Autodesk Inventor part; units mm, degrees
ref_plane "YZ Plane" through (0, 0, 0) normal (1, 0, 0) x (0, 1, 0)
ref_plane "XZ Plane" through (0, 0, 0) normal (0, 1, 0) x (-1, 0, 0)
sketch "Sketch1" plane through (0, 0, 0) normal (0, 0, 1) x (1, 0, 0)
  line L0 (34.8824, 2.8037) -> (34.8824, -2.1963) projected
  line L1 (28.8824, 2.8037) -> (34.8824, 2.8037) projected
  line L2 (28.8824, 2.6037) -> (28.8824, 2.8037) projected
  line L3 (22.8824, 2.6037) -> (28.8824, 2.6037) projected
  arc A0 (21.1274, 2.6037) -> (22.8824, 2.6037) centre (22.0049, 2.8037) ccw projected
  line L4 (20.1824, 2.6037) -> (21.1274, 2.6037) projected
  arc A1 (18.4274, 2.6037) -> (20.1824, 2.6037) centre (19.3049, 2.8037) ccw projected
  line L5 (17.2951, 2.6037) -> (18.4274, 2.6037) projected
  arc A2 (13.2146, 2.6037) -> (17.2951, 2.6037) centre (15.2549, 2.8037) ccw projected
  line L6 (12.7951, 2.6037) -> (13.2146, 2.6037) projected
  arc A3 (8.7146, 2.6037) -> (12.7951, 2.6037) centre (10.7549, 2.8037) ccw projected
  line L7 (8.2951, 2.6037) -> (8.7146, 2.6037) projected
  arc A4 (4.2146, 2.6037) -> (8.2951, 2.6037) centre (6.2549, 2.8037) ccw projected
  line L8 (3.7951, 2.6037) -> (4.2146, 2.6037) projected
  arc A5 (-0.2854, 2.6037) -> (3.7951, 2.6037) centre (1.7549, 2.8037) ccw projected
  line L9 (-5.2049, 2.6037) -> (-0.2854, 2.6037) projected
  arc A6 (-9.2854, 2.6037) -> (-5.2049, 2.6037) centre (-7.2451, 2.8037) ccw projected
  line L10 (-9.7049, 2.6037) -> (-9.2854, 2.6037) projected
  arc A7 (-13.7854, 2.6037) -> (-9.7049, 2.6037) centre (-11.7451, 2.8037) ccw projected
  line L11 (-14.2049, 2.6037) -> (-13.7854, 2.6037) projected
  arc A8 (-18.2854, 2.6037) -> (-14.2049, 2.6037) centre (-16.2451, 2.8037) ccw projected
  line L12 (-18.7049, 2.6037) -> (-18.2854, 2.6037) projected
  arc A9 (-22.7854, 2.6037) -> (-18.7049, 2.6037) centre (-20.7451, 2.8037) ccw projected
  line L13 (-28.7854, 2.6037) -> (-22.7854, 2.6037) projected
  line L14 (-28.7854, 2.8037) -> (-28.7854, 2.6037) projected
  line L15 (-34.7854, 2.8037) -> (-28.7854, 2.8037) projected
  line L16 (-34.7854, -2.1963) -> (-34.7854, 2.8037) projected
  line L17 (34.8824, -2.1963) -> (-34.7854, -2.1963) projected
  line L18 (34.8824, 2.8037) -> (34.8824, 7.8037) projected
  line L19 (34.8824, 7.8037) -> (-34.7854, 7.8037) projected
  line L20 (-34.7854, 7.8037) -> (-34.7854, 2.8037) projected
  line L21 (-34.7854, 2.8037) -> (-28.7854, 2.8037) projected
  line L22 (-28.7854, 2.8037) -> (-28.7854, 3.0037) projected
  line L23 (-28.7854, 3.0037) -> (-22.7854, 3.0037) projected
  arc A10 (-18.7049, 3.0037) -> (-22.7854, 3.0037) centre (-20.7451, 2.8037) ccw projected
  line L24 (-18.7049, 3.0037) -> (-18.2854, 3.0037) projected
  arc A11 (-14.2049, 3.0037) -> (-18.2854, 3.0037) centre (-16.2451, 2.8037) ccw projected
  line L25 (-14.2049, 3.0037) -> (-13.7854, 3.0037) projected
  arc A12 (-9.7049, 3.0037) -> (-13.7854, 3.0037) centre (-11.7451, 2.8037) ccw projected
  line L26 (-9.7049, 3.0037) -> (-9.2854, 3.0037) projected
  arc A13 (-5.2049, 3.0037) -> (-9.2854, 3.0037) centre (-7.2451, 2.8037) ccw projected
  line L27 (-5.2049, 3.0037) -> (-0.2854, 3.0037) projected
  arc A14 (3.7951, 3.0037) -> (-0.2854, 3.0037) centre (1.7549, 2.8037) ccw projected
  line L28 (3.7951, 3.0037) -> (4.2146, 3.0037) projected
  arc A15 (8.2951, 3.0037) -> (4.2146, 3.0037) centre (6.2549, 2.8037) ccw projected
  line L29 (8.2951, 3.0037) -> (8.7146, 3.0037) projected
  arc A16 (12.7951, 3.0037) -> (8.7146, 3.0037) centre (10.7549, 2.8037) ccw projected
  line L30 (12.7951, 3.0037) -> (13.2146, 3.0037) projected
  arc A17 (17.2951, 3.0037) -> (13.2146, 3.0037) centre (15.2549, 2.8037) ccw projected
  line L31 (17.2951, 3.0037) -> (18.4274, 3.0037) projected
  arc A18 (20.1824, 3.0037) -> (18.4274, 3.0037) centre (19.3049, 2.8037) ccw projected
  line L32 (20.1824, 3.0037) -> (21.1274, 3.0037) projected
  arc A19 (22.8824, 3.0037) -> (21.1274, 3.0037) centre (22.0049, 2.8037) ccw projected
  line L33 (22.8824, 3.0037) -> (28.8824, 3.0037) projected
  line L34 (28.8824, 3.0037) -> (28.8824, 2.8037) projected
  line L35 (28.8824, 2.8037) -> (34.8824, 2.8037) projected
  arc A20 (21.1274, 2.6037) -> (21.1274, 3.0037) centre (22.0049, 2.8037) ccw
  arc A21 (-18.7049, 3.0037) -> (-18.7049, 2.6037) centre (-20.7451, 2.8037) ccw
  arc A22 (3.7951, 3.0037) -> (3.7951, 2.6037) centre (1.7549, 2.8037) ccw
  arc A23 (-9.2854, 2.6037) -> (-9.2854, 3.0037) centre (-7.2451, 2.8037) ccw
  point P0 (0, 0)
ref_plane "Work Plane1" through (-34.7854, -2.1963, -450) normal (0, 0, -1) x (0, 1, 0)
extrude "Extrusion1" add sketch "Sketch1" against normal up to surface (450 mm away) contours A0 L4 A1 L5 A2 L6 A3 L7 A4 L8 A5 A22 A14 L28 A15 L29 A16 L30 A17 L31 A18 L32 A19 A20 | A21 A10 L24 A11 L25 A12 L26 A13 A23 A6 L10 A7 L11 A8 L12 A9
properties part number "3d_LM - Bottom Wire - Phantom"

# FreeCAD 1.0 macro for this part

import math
import FreeCAD as App
import Part
import Sketcher
from FreeCAD import Vector
Q = App.Units.Quantity

doc = App.newDocument("Part")
params = doc.addObject("Spreadsheet::Sheet", "Params")
for row, (alias, value) in enumerate([
    ("sketch1_radius", "0.9 mm"),
    ("sketch1_radius2", "2.05 mm"),
    ("sketch1_height", "0.2 mm"),
    ("pad1_length", "450 mm"),
], start=1):
    params.set(f"A{row}", alias)
    params.set(f"B{row}", "=" + value)
    params.setAlias(f"B{row}", alias)

body = doc.addObject("PartDesign::Body", "Body")
body.AllowCompound = True

# Sketch on XY plane
sketch1 = body.newObject("Sketcher::SketchObject", "Sketch")
sketch1.AttachmentSupport = (doc.getObject("XY_Plane"), [""])
sketch1.MapMode = "FlatFace"
sketch1.addGeometry([
    Part.ArcOfCircle(Part.Circle(Vector(22, 2.8, 0), Vector(0, 0, 1), 0.9), math.radians(-167), math.radians(167)),  # 0
    Part.LineSegment(Vector(21.13, 3, 0), Vector(20.18, 3, 0)),  # 1
    Part.ArcOfCircle(Part.Circle(Vector(19.3, 2.8, 0), Vector(0, 0, 1), 0.9), math.radians(13), math.radians(167)),  # 2
    Part.LineSegment(Vector(18.43, 3, 0), Vector(17.3, 3, 0)),  # 3
    Part.ArcOfCircle(Part.Circle(Vector(15.25, 2.8, 0), Vector(0, 0, 1), 2.05), math.radians(6), math.radians(174)),  # 4
    Part.LineSegment(Vector(13.21, 3, 0), Vector(12.8, 3, 0)),  # 5
    Part.ArcOfCircle(Part.Circle(Vector(10.75, 2.8, 0), Vector(0, 0, 1), 2.05), math.radians(6), math.radians(174)),  # 6
    Part.LineSegment(Vector(8.71, 3, 0), Vector(8.3, 3, 0)),  # 7
    Part.ArcOfCircle(Part.Circle(Vector(6.25, 2.8, 0), Vector(0, 0, 1), 2.05), math.radians(6), math.radians(174)),  # 8
    Part.LineSegment(Vector(4.21, 3, 0), Vector(3.8, 3, 0)),  # 9
    Part.ArcOfCircle(Part.Circle(Vector(1.75, 2.8, 0), Vector(0, 0, 1), 2.05), math.radians(6), math.radians(174)),  # 10
    Part.ArcOfCircle(Part.Circle(Vector(1.75, 2.8, 0), Vector(0, 0, 1), 2.05), math.radians(174.4), math.radians(185.6)),  # 11
    Part.ArcOfCircle(Part.Circle(Vector(1.75, 2.8, 0), Vector(0, 0, 1), 2.05), math.radians(-174), math.radians(-6)),  # 12
    Part.LineSegment(Vector(3.8, 2.6, 0), Vector(4.21, 2.6, 0)),  # 13
    Part.ArcOfCircle(Part.Circle(Vector(6.25, 2.8, 0), Vector(0, 0, 1), 2.05), math.radians(-174), math.radians(-6)),  # 14
    Part.LineSegment(Vector(8.3, 2.6, 0), Vector(8.71, 2.6, 0)),  # 15
    Part.ArcOfCircle(Part.Circle(Vector(10.75, 2.8, 0), Vector(0, 0, 1), 2.05), math.radians(-174), math.radians(-6)),  # 16
    Part.LineSegment(Vector(12.8, 2.6, 0), Vector(13.21, 2.6, 0)),  # 17
    Part.ArcOfCircle(Part.Circle(Vector(15.25, 2.8, 0), Vector(0, 0, 1), 2.05), math.radians(-174), math.radians(-6)),  # 18
    Part.LineSegment(Vector(17.3, 2.6, 0), Vector(18.43, 2.6, 0)),  # 19
    Part.ArcOfCircle(Part.Circle(Vector(19.3, 2.8, 0), Vector(0, 0, 1), 0.9), math.radians(-167), math.radians(-13)),  # 20
    Part.LineSegment(Vector(20.18, 2.6, 0), Vector(21.13, 2.6, 0)),  # 21
    Part.ArcOfCircle(Part.Circle(Vector(-20.75, 2.8, 0), Vector(0, 0, 1), 2.05), math.radians(174.4), math.radians(185.6)),  # 22
    Part.ArcOfCircle(Part.Circle(Vector(-20.75, 2.8, 0), Vector(0, 0, 1), 2.05), math.radians(-174), math.radians(-6)),  # 23
    Part.LineSegment(Vector(-18.7, 2.6, 0), Vector(-18.29, 2.6, 0)),  # 24
    Part.ArcOfCircle(Part.Circle(Vector(-16.25, 2.8, 0), Vector(0, 0, 1), 2.05), math.radians(-174), math.radians(-6)),  # 25
    Part.LineSegment(Vector(-14.2, 2.6, 0), Vector(-13.79, 2.6, 0)),  # 26
    Part.ArcOfCircle(Part.Circle(Vector(-11.75, 2.8, 0), Vector(0, 0, 1), 2.05), math.radians(-174), math.radians(-6)),  # 27
    Part.LineSegment(Vector(-9.7, 2.6, 0), Vector(-9.29, 2.6, 0)),  # 28
    Part.ArcOfCircle(Part.Circle(Vector(-7.25, 2.8, 0), Vector(0, 0, 1), 2.05), math.radians(-174), math.radians(-6)),  # 29
    Part.ArcOfCircle(Part.Circle(Vector(-7.25, 2.8, 0), Vector(0, 0, 1), 2.05), math.radians(-5.6), math.radians(5.6)),  # 30
    Part.ArcOfCircle(Part.Circle(Vector(-7.25, 2.8, 0), Vector(0, 0, 1), 2.05), math.radians(6), math.radians(174)),  # 31
    Part.LineSegment(Vector(-9.29, 3, 0), Vector(-9.7, 3, 0)),  # 32
    Part.ArcOfCircle(Part.Circle(Vector(-11.75, 2.8, 0), Vector(0, 0, 1), 2.05), math.radians(6), math.radians(174)),  # 33
    Part.LineSegment(Vector(-13.79, 3, 0), Vector(-14.2, 3, 0)),  # 34
    Part.ArcOfCircle(Part.Circle(Vector(-16.25, 2.8, 0), Vector(0, 0, 1), 2.05), math.radians(6), math.radians(174)),  # 35
    Part.LineSegment(Vector(-18.29, 3, 0), Vector(-18.7, 3, 0)),  # 36
    Part.ArcOfCircle(Part.Circle(Vector(-20.75, 2.8, 0), Vector(0, 0, 1), 2.05), math.radians(6), math.radians(174)),  # 37
], False)
sketch1.addConstraint([
    Sketcher.Constraint("Coincident", 0, 2, 1, 1),
    Sketcher.Constraint("Coincident", 1, 2, 2, 1),
    Sketcher.Constraint("Coincident", 2, 2, 3, 1),
    Sketcher.Constraint("Coincident", 3, 2, 4, 1),
    Sketcher.Constraint("Coincident", 4, 2, 5, 1),
    Sketcher.Constraint("Coincident", 5, 2, 6, 1),
    Sketcher.Constraint("Coincident", 6, 2, 7, 1),
    Sketcher.Constraint("Coincident", 7, 2, 8, 1),
    Sketcher.Constraint("Coincident", 8, 2, 9, 1),
    Sketcher.Constraint("Coincident", 9, 2, 10, 1),
    Sketcher.Constraint("Tangent", 10, 2, 11, 1),
    Sketcher.Constraint("Tangent", 11, 2, 12, 1),
    Sketcher.Constraint("Coincident", 12, 2, 13, 1),
    Sketcher.Constraint("Coincident", 13, 2, 14, 1),
    Sketcher.Constraint("Coincident", 14, 2, 15, 1),
    Sketcher.Constraint("Coincident", 15, 2, 16, 1),
    Sketcher.Constraint("Coincident", 16, 2, 17, 1),
    Sketcher.Constraint("Coincident", 17, 2, 18, 1),
    Sketcher.Constraint("Coincident", 18, 2, 19, 1),
    Sketcher.Constraint("Coincident", 19, 2, 20, 1),
    Sketcher.Constraint("Coincident", 20, 2, 21, 1),
    Sketcher.Constraint("Coincident", 21, 2, 0, 1),
    Sketcher.Constraint("Tangent", 22, 2, 23, 1),
    Sketcher.Constraint("Coincident", 23, 2, 24, 1),
    Sketcher.Constraint("Coincident", 24, 2, 25, 1),
    Sketcher.Constraint("Coincident", 25, 2, 26, 1),
    Sketcher.Constraint("Coincident", 26, 2, 27, 1),
    Sketcher.Constraint("Coincident", 27, 2, 28, 1),
    Sketcher.Constraint("Coincident", 28, 2, 29, 1),
    Sketcher.Constraint("Tangent", 29, 2, 30, 1),
    Sketcher.Constraint("Tangent", 30, 2, 31, 1),
    Sketcher.Constraint("Coincident", 31, 2, 32, 1),
    Sketcher.Constraint("Coincident", 32, 2, 33, 1),
    Sketcher.Constraint("Coincident", 33, 2, 34, 1),
    Sketcher.Constraint("Coincident", 34, 2, 35, 1),
    Sketcher.Constraint("Coincident", 35, 2, 36, 1),
    Sketcher.Constraint("Coincident", 36, 2, 37, 1),
    Sketcher.Constraint("Tangent", 37, 2, 22, 1),
    Sketcher.Constraint("Horizontal", 1),
    Sketcher.Constraint("Horizontal", 3),
    Sketcher.Constraint("Horizontal", 5),
    Sketcher.Constraint("Horizontal", 7),
    Sketcher.Constraint("Horizontal", 9),
    Sketcher.Constraint("Horizontal", 13),
    Sketcher.Constraint("Horizontal", 15),
    Sketcher.Constraint("Horizontal", 17),
    Sketcher.Constraint("Horizontal", 19),
    Sketcher.Constraint("Horizontal", 21),
    Sketcher.Constraint("Horizontal", 24),
    Sketcher.Constraint("Horizontal", 26),
    Sketcher.Constraint("Horizontal", 28),
    Sketcher.Constraint("Horizontal", 32),
    Sketcher.Constraint("Horizontal", 34),
    Sketcher.Constraint("Horizontal", 36),
    Sketcher.Constraint("Coincident", 12, 3, 10, 3),
    Sketcher.Constraint("Coincident", 14, 3, 8, 3),
    Sketcher.Constraint("Coincident", 16, 3, 6, 3),
    Sketcher.Constraint("Coincident", 18, 3, 4, 3),
    Sketcher.Constraint("Coincident", 20, 3, 2, 3),
    Sketcher.Constraint("Coincident", 31, 3, 29, 3),
    Sketcher.Constraint("Coincident", 33, 3, 27, 3),
    Sketcher.Constraint("Coincident", 35, 3, 25, 3),
    Sketcher.Constraint("Equal", 0, 2),
    Sketcher.Constraint("Equal", 4, 6),
    Sketcher.Constraint("Equal", 6, 8),
    Sketcher.Constraint("Equal", 8, 10),
    Sketcher.Constraint("Equal", 12, 14),
    Sketcher.Constraint("Equal", 14, 16),
    Sketcher.Constraint("Equal", 16, 18),
    Sketcher.Constraint("Equal", 2, 20),
    Sketcher.Constraint("Equal", 18, 22),
    Sketcher.Constraint("Equal", 22, 23),
    Sketcher.Constraint("Equal", 23, 25),
    Sketcher.Constraint("Equal", 25, 27),
    Sketcher.Constraint("Equal", 27, 29),
    Sketcher.Constraint("Equal", 31, 33),
    Sketcher.Constraint("Equal", 33, 35),
    Sketcher.Constraint("Equal", 35, 37),
    Sketcher.Constraint("Horizontal", 0, 3, 2, 3),
    Sketcher.Constraint("Horizontal", 2, 3, 4, 3),
    Sketcher.Constraint("Horizontal", 4, 3, 6, 3),
    Sketcher.Constraint("Horizontal", 6, 3, 8, 3),
    Sketcher.Constraint("Horizontal", 8, 3, 10, 3),
    Sketcher.Constraint("Horizontal", 20, 3, 22, 3),
    Sketcher.Constraint("Horizontal", 23, 3, 25, 3),
    Sketcher.Constraint("Horizontal", 25, 3, 27, 3),
    Sketcher.Constraint("Horizontal", 27, 3, 29, 3),
    Sketcher.Constraint("Horizontal", 1, 2, 2, 2),
    Sketcher.Constraint("Horizontal", 3, 2, 4, 2),
    Sketcher.Constraint("Horizontal", 5, 2, 6, 2),
    Sketcher.Constraint("Horizontal", 7, 2, 8, 2),
    Sketcher.Constraint("Horizontal", 9, 2, 10, 2),
    Sketcher.Constraint("Horizontal", 11, 2, 12, 2),
    Sketcher.Constraint("Horizontal", 13, 2, 14, 2),
    Sketcher.Constraint("Horizontal", 15, 2, 16, 2),
    Sketcher.Constraint("Horizontal", 17, 2, 18, 2),
    Sketcher.Constraint("Horizontal", 19, 2, 20, 2),
    Sketcher.Constraint("Horizontal", 21, 2, 22, 2),
    Sketcher.Constraint("Horizontal", 22, 2, 23, 2),
    Sketcher.Constraint("Horizontal", 24, 2, 25, 2),
    Sketcher.Constraint("Horizontal", 26, 2, 27, 2),
    Sketcher.Constraint("Horizontal", 28, 2, 29, 2),
    Sketcher.Constraint("Horizontal", 10, 2, 30, 2),
    Sketcher.Constraint("Horizontal", 30, 2, 31, 2),
    Sketcher.Constraint("Horizontal", 32, 2, 33, 2),
    Sketcher.Constraint("Horizontal", 34, 2, 35, 2),
    Sketcher.Constraint("Horizontal", 36, 2, 37, 2),
    Sketcher.Constraint("Vertical", 10, 2, 11, 2),
    Sketcher.Constraint("Equal", 5, 7),
    Sketcher.Constraint("Equal", 7, 9),
    Sketcher.Constraint("Equal", 17, 24),
    Sketcher.Constraint("Equal", 24, 26),
    Sketcher.Constraint("Equal", 26, 28),
    Sketcher.Constraint("Radius", 0, Q("0.9 mm")),
    Sketcher.Constraint("Radius", 4, Q("2.05 mm")),
    Sketcher.Constraint("DistanceX", 8, 3, 4, 3, Q("9 mm")),
    Sketcher.Constraint("DistanceX", 22, 3, 8, 3, Q("27 mm")),
    Sketcher.Constraint("DistanceX", 2, 3, 0, 3, Q("2.7 mm")),
    Sketcher.Constraint("DistanceY", 0, 3, 0, 2, Q("0.2 mm")),
    Sketcher.Constraint("DistanceX", 4, 3, 2, 3, Q("4.05 mm")),
    Sketcher.Constraint("DistanceX", -1, 1, 0, 3, Q("22.005 mm")),
    Sketcher.Constraint("DistanceY", -1, 1, 0, 3, Q("2.8037 mm")),
])
sketch1.setExpression("Constraints[113]", "Params.sketch1_radius")
sketch1.setExpression("Constraints[114]", "Params.sketch1_radius2")
sketch1.setExpression("Constraints[118]", "Params.sketch1_height")
pad1 = body.newObject("PartDesign::Pad", "Pad")
pad1.Profile = sketch1
pad1.setExpression("Length", "Params.pad1_length")
pad1.Reversed = True

doc.recompute()
